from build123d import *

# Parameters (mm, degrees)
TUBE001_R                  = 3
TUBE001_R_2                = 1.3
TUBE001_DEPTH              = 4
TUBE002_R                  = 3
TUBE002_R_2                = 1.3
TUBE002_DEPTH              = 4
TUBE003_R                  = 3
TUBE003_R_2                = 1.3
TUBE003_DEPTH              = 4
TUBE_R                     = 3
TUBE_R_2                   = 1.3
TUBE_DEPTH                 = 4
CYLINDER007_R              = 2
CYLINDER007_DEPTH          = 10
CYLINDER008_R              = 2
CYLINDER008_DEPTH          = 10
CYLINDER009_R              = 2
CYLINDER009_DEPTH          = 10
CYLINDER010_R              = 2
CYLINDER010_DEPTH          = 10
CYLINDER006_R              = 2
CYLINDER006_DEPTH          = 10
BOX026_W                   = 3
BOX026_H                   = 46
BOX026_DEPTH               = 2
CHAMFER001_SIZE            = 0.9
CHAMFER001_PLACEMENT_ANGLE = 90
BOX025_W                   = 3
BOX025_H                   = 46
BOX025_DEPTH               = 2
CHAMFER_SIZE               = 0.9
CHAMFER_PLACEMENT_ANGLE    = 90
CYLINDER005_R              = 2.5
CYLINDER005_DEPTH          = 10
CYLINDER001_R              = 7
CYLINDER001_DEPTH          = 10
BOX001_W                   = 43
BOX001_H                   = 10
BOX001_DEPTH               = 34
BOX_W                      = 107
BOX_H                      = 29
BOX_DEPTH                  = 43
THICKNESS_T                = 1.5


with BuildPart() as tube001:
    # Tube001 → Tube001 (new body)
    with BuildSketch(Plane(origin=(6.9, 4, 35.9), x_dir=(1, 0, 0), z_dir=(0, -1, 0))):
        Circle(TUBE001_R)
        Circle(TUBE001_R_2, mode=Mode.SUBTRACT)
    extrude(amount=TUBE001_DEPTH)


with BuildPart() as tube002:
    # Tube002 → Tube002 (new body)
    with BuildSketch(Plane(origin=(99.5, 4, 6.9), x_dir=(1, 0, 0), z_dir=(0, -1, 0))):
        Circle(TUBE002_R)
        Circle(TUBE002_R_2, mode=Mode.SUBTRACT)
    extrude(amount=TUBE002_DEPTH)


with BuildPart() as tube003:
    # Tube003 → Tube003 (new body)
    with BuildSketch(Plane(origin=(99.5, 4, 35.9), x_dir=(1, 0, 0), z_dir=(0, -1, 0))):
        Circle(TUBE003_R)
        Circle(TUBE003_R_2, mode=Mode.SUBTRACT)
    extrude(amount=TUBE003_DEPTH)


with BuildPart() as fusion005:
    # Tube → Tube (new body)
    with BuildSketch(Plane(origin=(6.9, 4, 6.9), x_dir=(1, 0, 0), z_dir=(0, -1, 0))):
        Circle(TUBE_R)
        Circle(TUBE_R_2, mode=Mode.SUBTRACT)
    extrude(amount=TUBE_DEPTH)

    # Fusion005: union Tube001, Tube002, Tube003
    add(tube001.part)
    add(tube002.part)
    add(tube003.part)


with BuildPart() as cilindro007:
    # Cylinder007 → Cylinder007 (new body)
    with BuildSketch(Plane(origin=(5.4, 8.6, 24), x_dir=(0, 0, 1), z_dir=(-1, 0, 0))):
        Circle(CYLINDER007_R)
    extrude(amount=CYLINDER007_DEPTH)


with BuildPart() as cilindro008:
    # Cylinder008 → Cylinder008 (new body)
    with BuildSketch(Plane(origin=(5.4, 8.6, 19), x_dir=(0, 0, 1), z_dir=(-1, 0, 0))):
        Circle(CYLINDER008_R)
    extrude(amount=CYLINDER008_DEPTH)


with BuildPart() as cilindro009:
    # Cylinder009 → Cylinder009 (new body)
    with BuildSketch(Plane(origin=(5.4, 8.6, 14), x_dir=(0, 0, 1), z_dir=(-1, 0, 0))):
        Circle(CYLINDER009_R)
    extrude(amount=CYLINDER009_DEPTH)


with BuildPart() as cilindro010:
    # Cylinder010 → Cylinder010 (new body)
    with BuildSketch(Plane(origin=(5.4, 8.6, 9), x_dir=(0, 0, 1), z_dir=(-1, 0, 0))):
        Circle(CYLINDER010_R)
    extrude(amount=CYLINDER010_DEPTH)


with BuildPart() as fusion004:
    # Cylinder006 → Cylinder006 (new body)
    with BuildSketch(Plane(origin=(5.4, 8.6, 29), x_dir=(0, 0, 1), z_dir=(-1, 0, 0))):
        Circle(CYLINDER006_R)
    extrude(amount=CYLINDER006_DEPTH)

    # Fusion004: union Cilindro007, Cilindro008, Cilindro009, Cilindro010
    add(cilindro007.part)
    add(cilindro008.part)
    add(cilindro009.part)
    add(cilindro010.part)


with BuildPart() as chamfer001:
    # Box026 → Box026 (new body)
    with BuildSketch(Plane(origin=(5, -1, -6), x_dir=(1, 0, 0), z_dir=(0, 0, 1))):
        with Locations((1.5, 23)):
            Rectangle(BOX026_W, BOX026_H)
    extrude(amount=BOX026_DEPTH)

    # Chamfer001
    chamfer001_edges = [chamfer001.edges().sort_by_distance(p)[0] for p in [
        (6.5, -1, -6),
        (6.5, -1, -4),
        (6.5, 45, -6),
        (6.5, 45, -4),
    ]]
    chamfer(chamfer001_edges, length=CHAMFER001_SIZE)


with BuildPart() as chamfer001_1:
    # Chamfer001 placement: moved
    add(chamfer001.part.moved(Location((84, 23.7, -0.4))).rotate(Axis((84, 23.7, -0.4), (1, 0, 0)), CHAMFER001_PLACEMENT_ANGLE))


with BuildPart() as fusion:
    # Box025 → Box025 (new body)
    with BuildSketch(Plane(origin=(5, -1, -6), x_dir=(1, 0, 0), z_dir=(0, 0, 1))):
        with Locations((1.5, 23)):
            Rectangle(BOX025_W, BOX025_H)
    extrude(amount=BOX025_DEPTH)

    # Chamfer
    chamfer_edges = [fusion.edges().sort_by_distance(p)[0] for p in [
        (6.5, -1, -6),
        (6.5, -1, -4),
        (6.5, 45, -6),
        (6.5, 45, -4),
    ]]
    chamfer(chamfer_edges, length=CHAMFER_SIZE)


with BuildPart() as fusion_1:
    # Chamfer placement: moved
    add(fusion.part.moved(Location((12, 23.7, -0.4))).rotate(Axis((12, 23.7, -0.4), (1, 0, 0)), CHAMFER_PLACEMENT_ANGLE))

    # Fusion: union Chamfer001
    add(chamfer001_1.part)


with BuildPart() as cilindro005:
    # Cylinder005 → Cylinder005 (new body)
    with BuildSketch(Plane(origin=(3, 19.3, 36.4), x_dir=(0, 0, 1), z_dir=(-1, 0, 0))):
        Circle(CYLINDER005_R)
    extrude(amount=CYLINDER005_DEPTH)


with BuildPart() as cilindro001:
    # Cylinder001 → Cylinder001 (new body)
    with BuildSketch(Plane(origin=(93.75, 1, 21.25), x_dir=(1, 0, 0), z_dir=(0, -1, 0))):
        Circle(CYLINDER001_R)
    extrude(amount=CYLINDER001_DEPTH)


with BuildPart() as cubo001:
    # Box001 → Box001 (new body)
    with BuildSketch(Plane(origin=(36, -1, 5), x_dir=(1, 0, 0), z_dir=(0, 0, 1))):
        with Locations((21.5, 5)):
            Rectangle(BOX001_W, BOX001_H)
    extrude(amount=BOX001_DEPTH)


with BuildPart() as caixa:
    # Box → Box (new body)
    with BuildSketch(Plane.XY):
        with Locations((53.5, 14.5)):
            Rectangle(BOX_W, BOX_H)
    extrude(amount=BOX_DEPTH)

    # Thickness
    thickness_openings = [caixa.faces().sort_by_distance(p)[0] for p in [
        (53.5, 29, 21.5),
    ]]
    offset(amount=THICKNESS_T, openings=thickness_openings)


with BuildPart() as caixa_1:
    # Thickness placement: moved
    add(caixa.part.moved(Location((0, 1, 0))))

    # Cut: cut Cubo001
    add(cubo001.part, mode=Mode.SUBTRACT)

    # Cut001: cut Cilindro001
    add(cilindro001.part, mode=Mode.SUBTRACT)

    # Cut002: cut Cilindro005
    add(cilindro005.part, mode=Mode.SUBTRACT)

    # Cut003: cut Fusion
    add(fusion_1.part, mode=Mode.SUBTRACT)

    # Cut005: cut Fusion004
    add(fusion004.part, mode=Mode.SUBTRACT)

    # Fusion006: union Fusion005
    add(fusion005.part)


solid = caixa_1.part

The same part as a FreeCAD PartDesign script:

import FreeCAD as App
import Part
import Sketcher
from FreeCAD import Vector


def edges_at(feature, points):
    """Names of the edges that pass closest to the given points."""
    edges = feature.Shape.Edges
    near = lambda p: min(range(len(edges)), key=lambda i: edges[i].distToShape(Part.Vertex(*p))[0])
    return sorted({f"Edge{near(p) + 1}" for p in points})


def faces_at(feature, points):
    """Names of the faces that lie closest to the given points."""
    faces = feature.Shape.Faces
    near = lambda p: min(range(len(faces)), key=lambda i: faces[i].distToShape(Part.Vertex(*p))[0])
    return sorted({f"Face{near(p) + 1}" for p in points})


def add_polygon(sketch, points):
    """Adds a closed chain of lines whose ends are joined by coincident constraints."""
    first, n = sketch.GeometryCount, len(points)
    for a, b in zip(points, points[1:] + points[:1]):
        sketch.addGeometry(Part.LineSegment(App.Vector(*a, 0), App.Vector(*b, 0)), False)
    for i in range(n):
        sketch.addConstraint(Sketcher.Constraint("Coincident", first + i, 2, first + (i + 1) % n, 1))

doc = App.newDocument("Part")
body = doc.addObject("PartDesign::Body", "Body")

# Sketch on XZ plane
sketch1 = doc.addObject("Sketcher::SketchObject", "Sketch")
body.addObject(sketch1)
sketch1.AttachmentSupport = (doc.XZ_Plane, [""])
sketch1.MapMode = "FlatFace"
sketch1.AttachmentOffset = App.Placement(Vector(0, 0, -4), App.Rotation())
sketch1.addGeometry(Part.Circle(Vector(6.9, 35.9, 0), Vector(0, 0, 1), 3), False)
sketch1.addGeometry(Part.Circle(Vector(6.9, 35.9, 0), Vector(0, 0, 1), 1.3), False)
sketch1.addConstraint(Sketcher.Constraint("Coincident", 1, 3, 0, 3))
sketch1.addConstraint(Sketcher.Constraint("Diameter", 0, 6.0))
sketch1.addConstraint(Sketcher.Constraint("Diameter", 1, 2.6))
sketch1.addConstraint(Sketcher.Constraint("DistanceX", -1, 1, 0, 3, 6.9))
sketch1.addConstraint(Sketcher.Constraint("DistanceY", -1, 1, 0, 3, 35.9))
pad1 = doc.addObject("PartDesign::Pad", "Pad")
body.addObject(pad1)
pad1.Profile = sketch1
pad1.Length = 4
body2 = doc.addObject("PartDesign::Body", "Body001")

# Sketch on XZ plane
sketch2 = doc.addObject("Sketcher::SketchObject", "Sketch001")
body2.addObject(sketch2)
sketch2.AttachmentSupport = (doc.getObject("XZ_Plane001"), [""])
sketch2.MapMode = "FlatFace"
sketch2.AttachmentOffset = App.Placement(Vector(0, 0, -4), App.Rotation())
sketch2.addGeometry(Part.Circle(Vector(99.5, 6.9, 0), Vector(0, 0, 1), 3), False)
sketch2.addGeometry(Part.Circle(Vector(99.5, 6.9, 0), Vector(0, 0, 1), 1.3), False)
sketch2.addConstraint(Sketcher.Constraint("Coincident", 1, 3, 0, 3))
sketch2.addConstraint(Sketcher.Constraint("Diameter", 0, 6.0))
sketch2.addConstraint(Sketcher.Constraint("Diameter", 1, 2.6))
sketch2.addConstraint(Sketcher.Constraint("DistanceX", -1, 1, 0, 3, 99.5))
sketch2.addConstraint(Sketcher.Constraint("DistanceY", -1, 1, 0, 3, 6.9))
pad2 = doc.addObject("PartDesign::Pad", "Pad001")
body2.addObject(pad2)
pad2.Profile = sketch2
pad2.Length = 4
body3 = doc.addObject("PartDesign::Body", "Body002")

# Sketch on XZ plane
sketch3 = doc.addObject("Sketcher::SketchObject", "Sketch002")
body3.addObject(sketch3)
sketch3.AttachmentSupport = (doc.getObject("XZ_Plane002"), [""])
sketch3.MapMode = "FlatFace"
sketch3.AttachmentOffset = App.Placement(Vector(0, 0, -4), App.Rotation())
sketch3.addGeometry(Part.Circle(Vector(99.5, 35.9, 0), Vector(0, 0, 1), 3), False)
sketch3.addGeometry(Part.Circle(Vector(99.5, 35.9, 0), Vector(0, 0, 1), 1.3), False)
sketch3.addConstraint(Sketcher.Constraint("Coincident", 1, 3, 0, 3))
sketch3.addConstraint(Sketcher.Constraint("Diameter", 0, 6.0))
sketch3.addConstraint(Sketcher.Constraint("Diameter", 1, 2.6))
sketch3.addConstraint(Sketcher.Constraint("DistanceX", -1, 1, 0, 3, 99.5))
sketch3.addConstraint(Sketcher.Constraint("DistanceY", -1, 1, 0, 3, 35.9))
pad3 = doc.addObject("PartDesign::Pad", "Pad002")
body3.addObject(pad3)
pad3.Profile = sketch3
pad3.Length = 4
body4 = doc.addObject("PartDesign::Body", "Body003")
body4.AllowCompound = True

# Sketch on XZ plane
sketch4 = doc.addObject("Sketcher::SketchObject", "Sketch003")
body4.addObject(sketch4)
sketch4.AttachmentSupport = (doc.getObject("XZ_Plane003"), [""])
sketch4.MapMode = "FlatFace"
sketch4.AttachmentOffset = App.Placement(Vector(0, 0, -4), App.Rotation())
sketch4.addGeometry(Part.Circle(Vector(6.9, 6.9, 0), Vector(0, 0, 1), 3), False)
sketch4.addGeometry(Part.Circle(Vector(6.9, 6.9, 0), Vector(0, 0, 1), 1.3), False)
sketch4.addConstraint(Sketcher.Constraint("Coincident", 1, 3, 0, 3))
sketch4.addConstraint(Sketcher.Constraint("Diameter", 0, 6.0))
sketch4.addConstraint(Sketcher.Constraint("Diameter", 1, 2.6))
sketch4.addConstraint(Sketcher.Constraint("DistanceX", -1, 1, 0, 3, 6.9))
sketch4.addConstraint(Sketcher.Constraint("DistanceY", -1, 1, 0, 3, 6.9))
pad4 = doc.addObject("PartDesign::Pad", "Pad003")
body4.addObject(pad4)
pad4.Profile = sketch4
pad4.Length = 4
doc.recompute()

boolean = doc.addObject("PartDesign::Boolean", "Boolean")
body4.addObject(boolean)
boolean.Type = "Fuse"
boolean.addObjects([body])
doc.recompute()

boolean2 = doc.addObject("PartDesign::Boolean", "Boolean001")
body4.addObject(boolean2)
boolean2.Type = "Fuse"
boolean2.addObjects([body2])
doc.recompute()

boolean3 = doc.addObject("PartDesign::Boolean", "Boolean002")
body4.addObject(boolean3)
boolean3.Type = "Fuse"
boolean3.addObjects([body3])
body5 = doc.addObject("PartDesign::Body", "Body004")

# Sketch on YZ plane
sketch5 = doc.addObject("Sketcher::SketchObject", "Sketch004")
body5.addObject(sketch5)
sketch5.AttachmentSupport = (doc.getObject("YZ_Plane004"), [""])
sketch5.MapMode = "FlatFace"
sketch5.AttachmentOffset = App.Placement(Vector(0, 0, 5.4), App.Rotation())
sketch5.addGeometry(Part.Circle(Vector(8.6, 24, 0), Vector(0, 0, 1), 2), False)
sketch5.addConstraint(Sketcher.Constraint("Diameter", 0, 4.0))
sketch5.addConstraint(Sketcher.Constraint("DistanceY", -1, 1, 0, 3, 24.0))
sketch5.addConstraint(Sketcher.Constraint("DistanceX", -1, 1, 0, 3, 8.6))
pad5 = doc.addObject("PartDesign::Pad", "Pad004")
body5.addObject(pad5)
pad5.Profile = sketch5
pad5.Length = 10
pad5.Reversed = True
body6 = doc.addObject("PartDesign::Body", "Body005")

# Sketch on YZ plane
sketch6 = doc.addObject("Sketcher::SketchObject", "Sketch005")
body6.addObject(sketch6)
sketch6.AttachmentSupport = (doc.getObject("YZ_Plane005"), [""])
sketch6.MapMode = "FlatFace"
sketch6.AttachmentOffset = App.Placement(Vector(0, 0, 5.4), App.Rotation())
sketch6.addGeometry(Part.Circle(Vector(8.6, 19, 0), Vector(0, 0, 1), 2), False)
sketch6.addConstraint(Sketcher.Constraint("Diameter", 0, 4.0))
sketch6.addConstraint(Sketcher.Constraint("DistanceY", -1, 1, 0, 3, 19.0))
sketch6.addConstraint(Sketcher.Constraint("DistanceX", -1, 1, 0, 3, 8.6))
pad6 = doc.addObject("PartDesign::Pad", "Pad005")
body6.addObject(pad6)
pad6.Profile = sketch6
pad6.Length = 10
pad6.Reversed = True
body7 = doc.addObject("PartDesign::Body", "Body006")

# Sketch on YZ plane
sketch7 = doc.addObject("Sketcher::SketchObject", "Sketch006")
body7.addObject(sketch7)
sketch7.AttachmentSupport = (doc.getObject("YZ_Plane006"), [""])
sketch7.MapMode = "FlatFace"
sketch7.AttachmentOffset = App.Placement(Vector(0, 0, 5.4), App.Rotation())
sketch7.addGeometry(Part.Circle(Vector(8.6, 14, 0), Vector(0, 0, 1), 2), False)
sketch7.addConstraint(Sketcher.Constraint("Diameter", 0, 4.0))
sketch7.addConstraint(Sketcher.Constraint("DistanceY", -1, 1, 0, 3, 14.0))
sketch7.addConstraint(Sketcher.Constraint("DistanceX", -1, 1, 0, 3, 8.6))
pad7 = doc.addObject("PartDesign::Pad", "Pad006")
body7.addObject(pad7)
pad7.Profile = sketch7
pad7.Length = 10
pad7.Reversed = True
body8 = doc.addObject("PartDesign::Body", "Body007")

# Sketch on YZ plane
sketch8 = doc.addObject("Sketcher::SketchObject", "Sketch007")
body8.addObject(sketch8)
sketch8.AttachmentSupport = (doc.getObject("YZ_Plane007"), [""])
sketch8.MapMode = "FlatFace"
sketch8.AttachmentOffset = App.Placement(Vector(0, 0, 5.4), App.Rotation())
sketch8.addGeometry(Part.Circle(Vector(8.6, 9, 0), Vector(0, 0, 1), 2), False)
sketch8.addConstraint(Sketcher.Constraint("Diameter", 0, 4.0))
sketch8.addConstraint(Sketcher.Constraint("DistanceY", -1, 1, 0, 3, 9.0))
sketch8.addConstraint(Sketcher.Constraint("DistanceX", -1, 1, 0, 3, 8.6))
pad8 = doc.addObject("PartDesign::Pad", "Pad007")
body8.addObject(pad8)
pad8.Profile = sketch8
pad8.Length = 10
pad8.Reversed = True
body9 = doc.addObject("PartDesign::Body", "Body008")
body9.AllowCompound = True

# Sketch on YZ plane
sketch9 = doc.addObject("Sketcher::SketchObject", "Sketch008")
body9.addObject(sketch9)
sketch9.AttachmentSupport = (doc.getObject("YZ_Plane008"), [""])
sketch9.MapMode = "FlatFace"
sketch9.AttachmentOffset = App.Placement(Vector(0, 0, 5.4), App.Rotation())
sketch9.addGeometry(Part.Circle(Vector(8.6, 29, 0), Vector(0, 0, 1), 2), False)
sketch9.addConstraint(Sketcher.Constraint("Diameter", 0, 4.0))
sketch9.addConstraint(Sketcher.Constraint("DistanceY", -1, 1, 0, 3, 29.0))
sketch9.addConstraint(Sketcher.Constraint("DistanceX", -1, 1, 0, 3, 8.6))
pad9 = doc.addObject("PartDesign::Pad", "Pad008")
body9.addObject(pad9)
pad9.Profile = sketch9
pad9.Length = 10
pad9.Reversed = True
doc.recompute()

boolean4 = doc.addObject("PartDesign::Boolean", "Boolean003")
body9.addObject(boolean4)
boolean4.Type = "Fuse"
boolean4.addObjects([body5])
doc.recompute()

boolean5 = doc.addObject("PartDesign::Boolean", "Boolean004")
body9.addObject(boolean5)
boolean5.Type = "Fuse"
boolean5.addObjects([body6])
doc.recompute()

boolean6 = doc.addObject("PartDesign::Boolean", "Boolean005")
body9.addObject(boolean6)
boolean6.Type = "Fuse"
boolean6.addObjects([body7])
doc.recompute()

boolean7 = doc.addObject("PartDesign::Boolean", "Boolean006")
body9.addObject(boolean7)
boolean7.Type = "Fuse"
boolean7.addObjects([body8])
body10 = doc.addObject("PartDesign::Body", "Body009")

# Sketch on XY plane
sketch10 = doc.addObject("Sketcher::SketchObject", "Sketch009")
body10.addObject(sketch10)
sketch10.AttachmentSupport = (doc.getObject("XY_Plane009"), [""])
sketch10.MapMode = "FlatFace"
sketch10.AttachmentOffset = App.Placement(Vector(0, 0, -6), App.Rotation())
add_polygon(sketch10, [(5, 45), (5, -1), (8, -1), (8, 45)])  # lines 0-3
sketch10.addConstraint(Sketcher.Constraint("Vertical", 0))
sketch10.addConstraint(Sketcher.Constraint("Horizontal", 1))
sketch10.addConstraint(Sketcher.Constraint("Vertical", 2))
sketch10.addConstraint(Sketcher.Constraint("Horizontal", 3))
sketch10.addConstraint(Sketcher.Constraint("DistanceX", 1, 1, 1, 2, 3.0))
sketch10.addConstraint(Sketcher.Constraint("DistanceY", 0, 2, 0, 1, 46.0))
sketch10.addConstraint(Sketcher.Constraint("DistanceX", -1, 1, 0, 2, 5.0))
sketch10.addConstraint(Sketcher.Constraint("DistanceY", 0, 2, -1, 1, 1.0))
pad10 = doc.addObject("PartDesign::Pad", "Pad009")
body10.addObject(pad10)
pad10.Profile = sketch10
pad10.Length = 2
doc.recompute()

chamfer = doc.addObject("PartDesign::Chamfer", "Chamfer")
body10.addObject(chamfer)
chamfer.Base = (pad10, edges_at(pad10, [
    (6.5, -1, -6),
    (6.5, -1, -4),
    (6.5, 45, -6),
    (6.5, 45, -4),
]))
chamfer.Size = 0.9
body11 = doc.addObject("PartDesign::Body", "Body010")
doc.recompute()

body10.Placement = App.Placement(Vector(84, 23.7, -0.4), App.Rotation(Vector(1, 0, 0), 90))
boolean8 = doc.addObject("PartDesign::Boolean", "Boolean007")
body11.addObject(boolean8)
boolean8.Type = "Fuse"
boolean8.addObjects([body10])
body12 = doc.addObject("PartDesign::Body", "Body011")

# Sketch on XY plane
sketch11 = doc.addObject("Sketcher::SketchObject", "Sketch010")
body12.addObject(sketch11)
sketch11.AttachmentSupport = (doc.getObject("XY_Plane011"), [""])
sketch11.MapMode = "FlatFace"
sketch11.AttachmentOffset = App.Placement(Vector(0, 0, -6), App.Rotation())
add_polygon(sketch11, [(5, 45), (5, -1), (8, -1), (8, 45)])  # lines 0-3
sketch11.addConstraint(Sketcher.Constraint("Vertical", 0))
sketch11.addConstraint(Sketcher.Constraint("Horizontal", 1))
sketch11.addConstraint(Sketcher.Constraint("Vertical", 2))
sketch11.addConstraint(Sketcher.Constraint("Horizontal", 3))
sketch11.addConstraint(Sketcher.Constraint("DistanceX", 1, 1, 1, 2, 3.0))
sketch11.addConstraint(Sketcher.Constraint("DistanceY", 0, 2, 0, 1, 46.0))
sketch11.addConstraint(Sketcher.Constraint("DistanceX", -1, 1, 0, 2, 5.0))
sketch11.addConstraint(Sketcher.Constraint("DistanceY", 0, 2, -1, 1, 1.0))
pad11 = doc.addObject("PartDesign::Pad", "Pad010")
body12.addObject(pad11)
pad11.Profile = sketch11
pad11.Length = 2
doc.recompute()

chamfer2 = doc.addObject("PartDesign::Chamfer", "Chamfer001")
body12.addObject(chamfer2)
chamfer2.Base = (pad11, edges_at(pad11, [
    (6.5, -1, -6),
    (6.5, -1, -4),
    (6.5, 45, -6),
    (6.5, 45, -4),
]))
chamfer2.Size = 0.9
body13 = doc.addObject("PartDesign::Body", "Body012")
body13.AllowCompound = True
doc.recompute()

body12.Placement = App.Placement(Vector(12, 23.7, -0.4), App.Rotation(Vector(1, 0, 0), 90))
boolean9 = doc.addObject("PartDesign::Boolean", "Boolean008")
body13.addObject(boolean9)
boolean9.Type = "Fuse"
boolean9.addObjects([body12])
doc.recompute()

boolean10 = doc.addObject("PartDesign::Boolean", "Boolean009")
body13.addObject(boolean10)
boolean10.Type = "Fuse"
boolean10.addObjects([body11])
body14 = doc.addObject("PartDesign::Body", "Body013")

# Sketch on YZ plane
sketch12 = doc.addObject("Sketcher::SketchObject", "Sketch011")
body14.addObject(sketch12)
sketch12.AttachmentSupport = (doc.getObject("YZ_Plane013"), [""])
sketch12.MapMode = "FlatFace"
sketch12.AttachmentOffset = App.Placement(Vector(0, 0, 3), App.Rotation())
sketch12.addGeometry(Part.Circle(Vector(19.3, 36.4, 0), Vector(0, 0, 1), 2.5), False)
sketch12.addConstraint(Sketcher.Constraint("Diameter", 0, 5.0))
sketch12.addConstraint(Sketcher.Constraint("DistanceX", -1, 1, 0, 3, 19.3))
sketch12.addConstraint(Sketcher.Constraint("DistanceY", -1, 1, 0, 3, 36.4))
pad12 = doc.addObject("PartDesign::Pad", "Pad011")
body14.addObject(pad12)
pad12.Profile = sketch12
pad12.Length = 10
pad12.Reversed = True
body15 = doc.addObject("PartDesign::Body", "Body014")

# Sketch on XZ plane
sketch13 = doc.addObject("Sketcher::SketchObject", "Sketch012")
body15.addObject(sketch13)
sketch13.AttachmentSupport = (doc.getObject("XZ_Plane014"), [""])
sketch13.MapMode = "FlatFace"
sketch13.AttachmentOffset = App.Placement(Vector(0, 0, -1), App.Rotation())
sketch13.addGeometry(Part.Circle(Vector(93.75, 21.25, 0), Vector(0, 0, 1), 7), False)
sketch13.addConstraint(Sketcher.Constraint("Diameter", 0, 14.0))
sketch13.addConstraint(Sketcher.Constraint("DistanceX", -1, 1, 0, 3, 93.75))
sketch13.addConstraint(Sketcher.Constraint("DistanceY", -1, 1, 0, 3, 21.25))
pad13 = doc.addObject("PartDesign::Pad", "Pad012")
body15.addObject(pad13)
pad13.Profile = sketch13
pad13.Length = 10
body16 = doc.addObject("PartDesign::Body", "Body015")

# Sketch on XY plane
sketch14 = doc.addObject("Sketcher::SketchObject", "Sketch013")
body16.addObject(sketch14)
sketch14.AttachmentSupport = (doc.getObject("XY_Plane015"), [""])
sketch14.MapMode = "FlatFace"
sketch14.AttachmentOffset = App.Placement(Vector(0, 0, 5), App.Rotation())
add_polygon(sketch14, [(36, 9), (36, -1), (79, -1), (79, 9)])  # lines 0-3
sketch14.addConstraint(Sketcher.Constraint("Vertical", 0))
sketch14.addConstraint(Sketcher.Constraint("Horizontal", 1))
sketch14.addConstraint(Sketcher.Constraint("Vertical", 2))
sketch14.addConstraint(Sketcher.Constraint("Horizontal", 3))
sketch14.addConstraint(Sketcher.Constraint("DistanceX", 1, 1, 1, 2, 43.0))
sketch14.addConstraint(Sketcher.Constraint("DistanceY", 0, 2, 0, 1, 10.0))
sketch14.addConstraint(Sketcher.Constraint("DistanceX", -1, 1, 0, 2, 36.0))
sketch14.addConstraint(Sketcher.Constraint("DistanceY", 0, 2, -1, 1, 1.0))
pad14 = doc.addObject("PartDesign::Pad", "Pad013")
body16.addObject(pad14)
pad14.Profile = sketch14
pad14.Length = 34
body17 = doc.addObject("PartDesign::Body", "Body016")

# Sketch on XY plane
sketch15 = doc.addObject("Sketcher::SketchObject", "Sketch014")
body17.addObject(sketch15)
sketch15.AttachmentSupport = (doc.getObject("XY_Plane016"), [""])
sketch15.MapMode = "FlatFace"
add_polygon(sketch15, [(0, 29), (0, 0), (107, 0), (107, 29)])  # lines 0-3
sketch15.addConstraint(Sketcher.Constraint("Vertical", 0))
sketch15.addConstraint(Sketcher.Constraint("Horizontal", 1))
sketch15.addConstraint(Sketcher.Constraint("Vertical", 2))
sketch15.addConstraint(Sketcher.Constraint("Horizontal", 3))
sketch15.addConstraint(Sketcher.Constraint("Coincident", 0, 2, -1, 1))
sketch15.addConstraint(Sketcher.Constraint("DistanceX", 1, 1, 1, 2, 107.0))
sketch15.addConstraint(Sketcher.Constraint("DistanceY", 0, 2, 0, 1, 29.0))
pad15 = doc.addObject("PartDesign::Pad", "Pad014")
body17.addObject(pad15)
pad15.Profile = sketch15
pad15.Length = 43
doc.recompute()

thickness = doc.addObject("PartDesign::Thickness", "Thickness")
body17.addObject(thickness)
thickness.Base = (pad15, faces_at(pad15, [(53.5, 29, 21.5)]))
thickness.Value = 1.5
thickness.Reversed = False
thickness.Join = "Arc"
body18 = doc.addObject("PartDesign::Body", "Body017")
doc.recompute()

body17.Placement = App.Placement(Vector(0, 1, 0), App.Rotation(Vector(0, 0, 1), 0))
boolean11 = doc.addObject("PartDesign::Boolean", "Boolean010")
body18.addObject(boolean11)
boolean11.Type = "Fuse"
boolean11.addObjects([body17])
doc.recompute()

boolean12 = doc.addObject("PartDesign::Boolean", "Boolean011")
body18.addObject(boolean12)
boolean12.Type = "Cut"
boolean12.addObjects([body16])
doc.recompute()

boolean13 = doc.addObject("PartDesign::Boolean", "Boolean012")
body18.addObject(boolean13)
boolean13.Type = "Cut"
boolean13.addObjects([body15])
doc.recompute()

boolean14 = doc.addObject("PartDesign::Boolean", "Boolean013")
body18.addObject(boolean14)
boolean14.Type = "Cut"
boolean14.addObjects([body14])
doc.recompute()

boolean15 = doc.addObject("PartDesign::Boolean", "Boolean014")
body18.addObject(boolean15)
boolean15.Type = "Cut"
boolean15.addObjects([body13])
doc.recompute()

boolean16 = doc.addObject("PartDesign::Boolean", "Boolean015")
body18.addObject(boolean16)
boolean16.Type = "Cut"
boolean16.addObjects([body9])
doc.recompute()

boolean17 = doc.addObject("PartDesign::Boolean", "Boolean016")
body18.addObject(boolean17)
boolean17.Type = "Fuse"
boolean17.addObjects([body4])

doc.recompute()
